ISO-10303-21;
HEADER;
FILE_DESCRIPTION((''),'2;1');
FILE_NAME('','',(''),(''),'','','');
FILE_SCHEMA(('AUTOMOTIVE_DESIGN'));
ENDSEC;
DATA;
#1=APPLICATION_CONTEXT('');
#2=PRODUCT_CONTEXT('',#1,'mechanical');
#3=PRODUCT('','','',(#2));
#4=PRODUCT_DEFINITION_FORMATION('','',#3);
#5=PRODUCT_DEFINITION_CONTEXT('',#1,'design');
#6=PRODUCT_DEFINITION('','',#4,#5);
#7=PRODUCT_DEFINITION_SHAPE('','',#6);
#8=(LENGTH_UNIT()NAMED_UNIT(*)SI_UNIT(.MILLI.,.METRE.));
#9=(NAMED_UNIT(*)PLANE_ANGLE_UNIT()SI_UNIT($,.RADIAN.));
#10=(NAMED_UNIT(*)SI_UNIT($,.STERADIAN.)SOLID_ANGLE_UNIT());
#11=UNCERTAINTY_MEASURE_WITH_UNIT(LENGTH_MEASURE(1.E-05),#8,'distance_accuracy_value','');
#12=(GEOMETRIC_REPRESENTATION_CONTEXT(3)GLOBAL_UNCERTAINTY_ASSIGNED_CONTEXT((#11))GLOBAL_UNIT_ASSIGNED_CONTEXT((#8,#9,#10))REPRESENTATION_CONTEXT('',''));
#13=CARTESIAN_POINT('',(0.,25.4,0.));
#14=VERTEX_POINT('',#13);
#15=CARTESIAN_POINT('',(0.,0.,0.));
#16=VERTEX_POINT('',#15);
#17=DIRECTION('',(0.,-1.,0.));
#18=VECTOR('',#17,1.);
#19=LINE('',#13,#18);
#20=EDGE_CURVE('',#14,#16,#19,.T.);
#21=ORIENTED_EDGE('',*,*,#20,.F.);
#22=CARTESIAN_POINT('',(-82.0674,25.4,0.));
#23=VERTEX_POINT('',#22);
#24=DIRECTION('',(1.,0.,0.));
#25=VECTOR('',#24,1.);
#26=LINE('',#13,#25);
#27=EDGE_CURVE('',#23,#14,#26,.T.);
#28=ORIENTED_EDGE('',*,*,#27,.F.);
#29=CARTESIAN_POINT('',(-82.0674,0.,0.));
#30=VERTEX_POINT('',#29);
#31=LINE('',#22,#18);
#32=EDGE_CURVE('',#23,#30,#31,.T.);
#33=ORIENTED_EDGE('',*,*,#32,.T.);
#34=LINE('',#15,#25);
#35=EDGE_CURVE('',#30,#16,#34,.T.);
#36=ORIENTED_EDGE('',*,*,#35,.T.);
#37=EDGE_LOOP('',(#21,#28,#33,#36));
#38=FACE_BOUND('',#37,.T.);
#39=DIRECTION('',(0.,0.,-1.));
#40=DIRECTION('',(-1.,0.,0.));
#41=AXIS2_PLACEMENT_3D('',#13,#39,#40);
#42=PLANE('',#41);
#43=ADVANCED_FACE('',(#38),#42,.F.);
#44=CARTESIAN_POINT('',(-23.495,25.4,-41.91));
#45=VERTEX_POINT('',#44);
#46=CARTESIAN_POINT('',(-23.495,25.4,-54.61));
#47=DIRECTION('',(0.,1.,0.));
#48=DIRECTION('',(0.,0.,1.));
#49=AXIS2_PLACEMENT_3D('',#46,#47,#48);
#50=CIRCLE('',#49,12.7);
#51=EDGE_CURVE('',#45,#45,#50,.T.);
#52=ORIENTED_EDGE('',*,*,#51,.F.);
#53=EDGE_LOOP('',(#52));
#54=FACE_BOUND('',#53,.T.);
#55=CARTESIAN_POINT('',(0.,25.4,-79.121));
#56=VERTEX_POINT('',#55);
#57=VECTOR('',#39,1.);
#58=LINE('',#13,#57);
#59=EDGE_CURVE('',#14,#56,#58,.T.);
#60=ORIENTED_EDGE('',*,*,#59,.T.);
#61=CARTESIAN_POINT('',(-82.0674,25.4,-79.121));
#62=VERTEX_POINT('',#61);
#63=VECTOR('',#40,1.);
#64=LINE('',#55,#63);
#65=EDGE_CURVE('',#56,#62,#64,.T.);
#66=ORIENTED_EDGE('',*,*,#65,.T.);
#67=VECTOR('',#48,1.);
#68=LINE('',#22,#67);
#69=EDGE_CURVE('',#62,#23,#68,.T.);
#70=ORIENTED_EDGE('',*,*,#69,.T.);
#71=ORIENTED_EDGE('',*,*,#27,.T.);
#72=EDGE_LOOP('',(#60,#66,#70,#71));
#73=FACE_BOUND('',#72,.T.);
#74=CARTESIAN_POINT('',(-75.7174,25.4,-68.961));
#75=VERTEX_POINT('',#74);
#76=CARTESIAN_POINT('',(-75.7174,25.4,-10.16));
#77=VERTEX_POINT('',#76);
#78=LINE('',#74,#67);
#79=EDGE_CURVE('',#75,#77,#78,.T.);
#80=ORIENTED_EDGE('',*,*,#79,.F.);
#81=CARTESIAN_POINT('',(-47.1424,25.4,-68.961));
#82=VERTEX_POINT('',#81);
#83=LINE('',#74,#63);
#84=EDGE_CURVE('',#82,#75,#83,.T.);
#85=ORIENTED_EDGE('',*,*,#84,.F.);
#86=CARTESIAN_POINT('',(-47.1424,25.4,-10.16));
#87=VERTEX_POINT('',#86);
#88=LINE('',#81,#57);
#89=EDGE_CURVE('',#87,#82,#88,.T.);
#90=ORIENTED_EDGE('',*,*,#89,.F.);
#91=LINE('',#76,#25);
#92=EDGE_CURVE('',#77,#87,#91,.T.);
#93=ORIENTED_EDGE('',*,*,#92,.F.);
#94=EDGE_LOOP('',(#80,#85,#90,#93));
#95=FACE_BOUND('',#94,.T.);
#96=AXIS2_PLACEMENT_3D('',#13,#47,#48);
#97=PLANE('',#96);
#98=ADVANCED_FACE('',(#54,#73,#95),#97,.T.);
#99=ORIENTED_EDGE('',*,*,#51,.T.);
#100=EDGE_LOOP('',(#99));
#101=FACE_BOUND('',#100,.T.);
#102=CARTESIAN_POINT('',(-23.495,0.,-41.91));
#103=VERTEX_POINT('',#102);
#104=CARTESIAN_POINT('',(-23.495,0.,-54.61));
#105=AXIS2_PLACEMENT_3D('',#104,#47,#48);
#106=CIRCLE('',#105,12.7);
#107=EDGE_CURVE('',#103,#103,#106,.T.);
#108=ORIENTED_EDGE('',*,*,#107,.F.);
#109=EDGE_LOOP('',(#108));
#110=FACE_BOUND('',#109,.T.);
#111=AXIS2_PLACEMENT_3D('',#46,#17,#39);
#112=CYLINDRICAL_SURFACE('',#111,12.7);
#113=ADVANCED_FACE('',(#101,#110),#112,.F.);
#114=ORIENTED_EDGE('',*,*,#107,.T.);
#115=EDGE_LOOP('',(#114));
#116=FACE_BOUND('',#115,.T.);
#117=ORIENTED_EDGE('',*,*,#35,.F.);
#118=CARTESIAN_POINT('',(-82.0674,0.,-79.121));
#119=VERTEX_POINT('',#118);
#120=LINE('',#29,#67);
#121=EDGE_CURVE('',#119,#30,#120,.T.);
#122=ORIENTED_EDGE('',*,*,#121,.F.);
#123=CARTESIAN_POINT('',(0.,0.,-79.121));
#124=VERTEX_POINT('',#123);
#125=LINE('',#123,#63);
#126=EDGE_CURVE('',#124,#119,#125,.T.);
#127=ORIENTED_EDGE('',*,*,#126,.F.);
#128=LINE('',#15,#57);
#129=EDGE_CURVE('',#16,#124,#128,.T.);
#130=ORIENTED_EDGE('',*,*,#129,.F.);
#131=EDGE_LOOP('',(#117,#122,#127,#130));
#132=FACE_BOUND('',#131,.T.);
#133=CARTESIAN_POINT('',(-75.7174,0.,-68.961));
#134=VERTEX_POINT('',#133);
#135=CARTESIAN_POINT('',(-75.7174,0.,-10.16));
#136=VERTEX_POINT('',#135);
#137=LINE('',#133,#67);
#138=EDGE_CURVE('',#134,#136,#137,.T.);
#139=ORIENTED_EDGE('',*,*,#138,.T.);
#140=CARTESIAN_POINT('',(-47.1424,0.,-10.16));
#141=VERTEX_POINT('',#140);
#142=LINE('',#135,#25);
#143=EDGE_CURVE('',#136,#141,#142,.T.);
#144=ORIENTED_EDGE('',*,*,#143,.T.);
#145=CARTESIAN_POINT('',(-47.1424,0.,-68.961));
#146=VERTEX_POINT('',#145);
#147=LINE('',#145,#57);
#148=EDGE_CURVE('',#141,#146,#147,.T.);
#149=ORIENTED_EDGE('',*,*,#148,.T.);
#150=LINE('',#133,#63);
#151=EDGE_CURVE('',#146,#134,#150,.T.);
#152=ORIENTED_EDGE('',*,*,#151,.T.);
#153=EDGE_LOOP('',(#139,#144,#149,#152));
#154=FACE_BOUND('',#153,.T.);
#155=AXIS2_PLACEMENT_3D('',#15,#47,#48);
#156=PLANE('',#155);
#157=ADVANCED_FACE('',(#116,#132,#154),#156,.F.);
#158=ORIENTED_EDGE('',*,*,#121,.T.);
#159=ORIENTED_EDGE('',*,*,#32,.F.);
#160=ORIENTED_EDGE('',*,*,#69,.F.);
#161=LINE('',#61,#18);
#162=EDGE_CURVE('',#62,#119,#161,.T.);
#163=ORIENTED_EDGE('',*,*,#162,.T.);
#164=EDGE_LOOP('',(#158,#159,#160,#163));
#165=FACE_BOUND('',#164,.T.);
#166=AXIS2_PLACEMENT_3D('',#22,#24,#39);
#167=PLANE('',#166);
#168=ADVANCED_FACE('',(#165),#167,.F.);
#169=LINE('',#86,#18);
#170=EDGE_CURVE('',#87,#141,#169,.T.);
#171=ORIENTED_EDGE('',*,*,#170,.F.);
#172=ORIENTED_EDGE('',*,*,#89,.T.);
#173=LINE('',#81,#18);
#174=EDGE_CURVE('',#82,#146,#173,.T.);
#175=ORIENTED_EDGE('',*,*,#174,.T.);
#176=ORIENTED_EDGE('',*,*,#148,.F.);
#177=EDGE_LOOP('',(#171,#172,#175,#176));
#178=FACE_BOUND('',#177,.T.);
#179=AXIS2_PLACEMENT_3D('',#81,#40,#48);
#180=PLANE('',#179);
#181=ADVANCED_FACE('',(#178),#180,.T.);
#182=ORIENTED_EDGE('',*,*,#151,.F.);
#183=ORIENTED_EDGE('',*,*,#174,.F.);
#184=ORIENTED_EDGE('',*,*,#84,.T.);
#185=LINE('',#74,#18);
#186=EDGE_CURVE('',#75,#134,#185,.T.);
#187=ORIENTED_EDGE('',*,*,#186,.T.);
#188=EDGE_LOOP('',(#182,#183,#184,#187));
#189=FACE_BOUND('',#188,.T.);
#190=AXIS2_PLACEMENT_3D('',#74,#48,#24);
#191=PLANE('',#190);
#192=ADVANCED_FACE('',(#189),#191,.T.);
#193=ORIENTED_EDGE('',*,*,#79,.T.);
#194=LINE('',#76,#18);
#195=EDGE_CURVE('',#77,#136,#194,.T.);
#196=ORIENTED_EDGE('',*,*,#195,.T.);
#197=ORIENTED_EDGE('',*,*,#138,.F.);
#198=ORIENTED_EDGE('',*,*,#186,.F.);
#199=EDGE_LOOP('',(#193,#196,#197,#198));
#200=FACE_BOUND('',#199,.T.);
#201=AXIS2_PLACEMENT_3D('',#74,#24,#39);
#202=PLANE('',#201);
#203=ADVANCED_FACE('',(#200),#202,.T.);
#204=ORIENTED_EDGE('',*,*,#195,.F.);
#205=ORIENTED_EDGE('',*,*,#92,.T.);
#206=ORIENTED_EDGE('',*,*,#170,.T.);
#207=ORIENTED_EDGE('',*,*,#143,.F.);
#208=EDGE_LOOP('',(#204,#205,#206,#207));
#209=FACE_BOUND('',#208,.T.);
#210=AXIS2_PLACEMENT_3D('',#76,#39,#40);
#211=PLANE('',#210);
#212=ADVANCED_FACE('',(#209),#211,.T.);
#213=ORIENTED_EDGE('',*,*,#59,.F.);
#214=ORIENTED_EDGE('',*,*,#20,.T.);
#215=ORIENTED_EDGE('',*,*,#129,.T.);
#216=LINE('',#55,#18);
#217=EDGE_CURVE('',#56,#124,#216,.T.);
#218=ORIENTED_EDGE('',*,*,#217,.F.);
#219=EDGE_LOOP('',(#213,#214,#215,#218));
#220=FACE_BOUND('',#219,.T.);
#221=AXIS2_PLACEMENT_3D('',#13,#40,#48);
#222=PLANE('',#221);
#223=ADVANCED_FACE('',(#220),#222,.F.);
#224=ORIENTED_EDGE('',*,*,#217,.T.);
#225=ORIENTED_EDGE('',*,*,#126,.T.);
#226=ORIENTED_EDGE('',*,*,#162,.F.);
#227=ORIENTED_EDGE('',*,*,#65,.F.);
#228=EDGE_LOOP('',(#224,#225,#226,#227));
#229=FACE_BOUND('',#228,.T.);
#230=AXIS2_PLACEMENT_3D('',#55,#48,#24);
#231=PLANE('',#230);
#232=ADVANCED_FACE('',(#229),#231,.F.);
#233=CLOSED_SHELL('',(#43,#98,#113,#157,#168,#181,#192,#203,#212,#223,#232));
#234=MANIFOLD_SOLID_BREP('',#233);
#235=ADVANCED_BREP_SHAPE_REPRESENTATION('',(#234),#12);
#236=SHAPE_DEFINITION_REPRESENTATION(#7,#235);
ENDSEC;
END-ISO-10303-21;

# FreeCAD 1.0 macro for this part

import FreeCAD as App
import Part
import Sketcher
from FreeCAD import Vector
Q = App.Units.Quantity


def add_polygon(sketch, points):
    """Adds a closed chain of lines whose ends are joined by coincident constraints."""
    first, n = sketch.GeometryCount, len(points)
    for a, b in zip(points, points[1:] + points[:1]):
        sketch.addGeometry(Part.LineSegment(App.Vector(*a, 0), App.Vector(*b, 0)), False)
    for i in range(n):
        sketch.addConstraint(Sketcher.Constraint("Coincident", first + i, 2, first + (i + 1) % n, 1))

doc = App.newDocument("Part")
body = doc.addObject("PartDesign::Body", "Body")

# Sketch on XZ plane
sketch1 = body.newObject("Sketcher::SketchObject", "Sketch")
sketch1.AttachmentSupport = (doc.getObject("XZ_Plane"), [""])
sketch1.MapMode = "FlatFace"
add_polygon(sketch1, [(-82.0674, -79.121), (-82.0674, 0), (0, 0), (0, -79.121)])  # lines 0-3
add_polygon(sketch1, [(-47.1424, -10.16), (-75.7174, -10.16), (-75.7174, -68.961), (-47.1424, -68.961)])  # lines 4-7
sketch1.addGeometry(Part.Circle(Vector(-23.495, -54.61, 0), Vector(0, 0, 1), 12.7), False)  # 8
sketch1.addConstraint(Sketcher.Constraint("Vertical", 0))
sketch1.addConstraint(Sketcher.Constraint("Horizontal", 1))
sketch1.addConstraint(Sketcher.Constraint("Vertical", 2))
sketch1.addConstraint(Sketcher.Constraint("Horizontal", 3))
sketch1.addConstraint(Sketcher.Constraint("Horizontal", 4))
sketch1.addConstraint(Sketcher.Constraint("Vertical", 5))
sketch1.addConstraint(Sketcher.Constraint("Horizontal", 6))
sketch1.addConstraint(Sketcher.Constraint("Vertical", 7))
sketch1.addConstraint(Sketcher.Constraint("Coincident", 1, 2, -1, 1))
sketch1.addConstraint(Sketcher.Constraint("Diameter", 8, Q("1 in")))
sketch1.addConstraint(Sketcher.Constraint("DistanceY", 4, 2, -1, 1, Q("0.4 in")))
sketch1.addConstraint(Sketcher.Constraint("DistanceY", 3, 2, 5, 2, Q("0.4 in")))
sketch1.addConstraint(Sketcher.Constraint("DistanceX", 1, 1, 1, 2, Q("3.231 in")))
sketch1.addConstraint(Sketcher.Constraint("DistanceX", 4, 2, 4, 1, Q("1.125 in")))
sketch1.addConstraint(Sketcher.Constraint("DistanceY", 0, 1, 0, 2, Q("3.115 in")))
sketch1.addConstraint(Sketcher.Constraint("DistanceY", 8, 3, -1, 1, Q("2.15 in")))
sketch1.addConstraint(Sketcher.Constraint("DistanceX", 0, 2, 4, 2, Q("0.25 in")))
sketch1.addConstraint(Sketcher.Constraint("DistanceX", 8, 3, -1, 1, Q("0.925 in")))
pad1 = body.newObject("PartDesign::Pad", "Pad")
pad1.Profile = sketch1
pad1.Length = Q("1 in")
pad1.Reversed = True

doc.recompute()
